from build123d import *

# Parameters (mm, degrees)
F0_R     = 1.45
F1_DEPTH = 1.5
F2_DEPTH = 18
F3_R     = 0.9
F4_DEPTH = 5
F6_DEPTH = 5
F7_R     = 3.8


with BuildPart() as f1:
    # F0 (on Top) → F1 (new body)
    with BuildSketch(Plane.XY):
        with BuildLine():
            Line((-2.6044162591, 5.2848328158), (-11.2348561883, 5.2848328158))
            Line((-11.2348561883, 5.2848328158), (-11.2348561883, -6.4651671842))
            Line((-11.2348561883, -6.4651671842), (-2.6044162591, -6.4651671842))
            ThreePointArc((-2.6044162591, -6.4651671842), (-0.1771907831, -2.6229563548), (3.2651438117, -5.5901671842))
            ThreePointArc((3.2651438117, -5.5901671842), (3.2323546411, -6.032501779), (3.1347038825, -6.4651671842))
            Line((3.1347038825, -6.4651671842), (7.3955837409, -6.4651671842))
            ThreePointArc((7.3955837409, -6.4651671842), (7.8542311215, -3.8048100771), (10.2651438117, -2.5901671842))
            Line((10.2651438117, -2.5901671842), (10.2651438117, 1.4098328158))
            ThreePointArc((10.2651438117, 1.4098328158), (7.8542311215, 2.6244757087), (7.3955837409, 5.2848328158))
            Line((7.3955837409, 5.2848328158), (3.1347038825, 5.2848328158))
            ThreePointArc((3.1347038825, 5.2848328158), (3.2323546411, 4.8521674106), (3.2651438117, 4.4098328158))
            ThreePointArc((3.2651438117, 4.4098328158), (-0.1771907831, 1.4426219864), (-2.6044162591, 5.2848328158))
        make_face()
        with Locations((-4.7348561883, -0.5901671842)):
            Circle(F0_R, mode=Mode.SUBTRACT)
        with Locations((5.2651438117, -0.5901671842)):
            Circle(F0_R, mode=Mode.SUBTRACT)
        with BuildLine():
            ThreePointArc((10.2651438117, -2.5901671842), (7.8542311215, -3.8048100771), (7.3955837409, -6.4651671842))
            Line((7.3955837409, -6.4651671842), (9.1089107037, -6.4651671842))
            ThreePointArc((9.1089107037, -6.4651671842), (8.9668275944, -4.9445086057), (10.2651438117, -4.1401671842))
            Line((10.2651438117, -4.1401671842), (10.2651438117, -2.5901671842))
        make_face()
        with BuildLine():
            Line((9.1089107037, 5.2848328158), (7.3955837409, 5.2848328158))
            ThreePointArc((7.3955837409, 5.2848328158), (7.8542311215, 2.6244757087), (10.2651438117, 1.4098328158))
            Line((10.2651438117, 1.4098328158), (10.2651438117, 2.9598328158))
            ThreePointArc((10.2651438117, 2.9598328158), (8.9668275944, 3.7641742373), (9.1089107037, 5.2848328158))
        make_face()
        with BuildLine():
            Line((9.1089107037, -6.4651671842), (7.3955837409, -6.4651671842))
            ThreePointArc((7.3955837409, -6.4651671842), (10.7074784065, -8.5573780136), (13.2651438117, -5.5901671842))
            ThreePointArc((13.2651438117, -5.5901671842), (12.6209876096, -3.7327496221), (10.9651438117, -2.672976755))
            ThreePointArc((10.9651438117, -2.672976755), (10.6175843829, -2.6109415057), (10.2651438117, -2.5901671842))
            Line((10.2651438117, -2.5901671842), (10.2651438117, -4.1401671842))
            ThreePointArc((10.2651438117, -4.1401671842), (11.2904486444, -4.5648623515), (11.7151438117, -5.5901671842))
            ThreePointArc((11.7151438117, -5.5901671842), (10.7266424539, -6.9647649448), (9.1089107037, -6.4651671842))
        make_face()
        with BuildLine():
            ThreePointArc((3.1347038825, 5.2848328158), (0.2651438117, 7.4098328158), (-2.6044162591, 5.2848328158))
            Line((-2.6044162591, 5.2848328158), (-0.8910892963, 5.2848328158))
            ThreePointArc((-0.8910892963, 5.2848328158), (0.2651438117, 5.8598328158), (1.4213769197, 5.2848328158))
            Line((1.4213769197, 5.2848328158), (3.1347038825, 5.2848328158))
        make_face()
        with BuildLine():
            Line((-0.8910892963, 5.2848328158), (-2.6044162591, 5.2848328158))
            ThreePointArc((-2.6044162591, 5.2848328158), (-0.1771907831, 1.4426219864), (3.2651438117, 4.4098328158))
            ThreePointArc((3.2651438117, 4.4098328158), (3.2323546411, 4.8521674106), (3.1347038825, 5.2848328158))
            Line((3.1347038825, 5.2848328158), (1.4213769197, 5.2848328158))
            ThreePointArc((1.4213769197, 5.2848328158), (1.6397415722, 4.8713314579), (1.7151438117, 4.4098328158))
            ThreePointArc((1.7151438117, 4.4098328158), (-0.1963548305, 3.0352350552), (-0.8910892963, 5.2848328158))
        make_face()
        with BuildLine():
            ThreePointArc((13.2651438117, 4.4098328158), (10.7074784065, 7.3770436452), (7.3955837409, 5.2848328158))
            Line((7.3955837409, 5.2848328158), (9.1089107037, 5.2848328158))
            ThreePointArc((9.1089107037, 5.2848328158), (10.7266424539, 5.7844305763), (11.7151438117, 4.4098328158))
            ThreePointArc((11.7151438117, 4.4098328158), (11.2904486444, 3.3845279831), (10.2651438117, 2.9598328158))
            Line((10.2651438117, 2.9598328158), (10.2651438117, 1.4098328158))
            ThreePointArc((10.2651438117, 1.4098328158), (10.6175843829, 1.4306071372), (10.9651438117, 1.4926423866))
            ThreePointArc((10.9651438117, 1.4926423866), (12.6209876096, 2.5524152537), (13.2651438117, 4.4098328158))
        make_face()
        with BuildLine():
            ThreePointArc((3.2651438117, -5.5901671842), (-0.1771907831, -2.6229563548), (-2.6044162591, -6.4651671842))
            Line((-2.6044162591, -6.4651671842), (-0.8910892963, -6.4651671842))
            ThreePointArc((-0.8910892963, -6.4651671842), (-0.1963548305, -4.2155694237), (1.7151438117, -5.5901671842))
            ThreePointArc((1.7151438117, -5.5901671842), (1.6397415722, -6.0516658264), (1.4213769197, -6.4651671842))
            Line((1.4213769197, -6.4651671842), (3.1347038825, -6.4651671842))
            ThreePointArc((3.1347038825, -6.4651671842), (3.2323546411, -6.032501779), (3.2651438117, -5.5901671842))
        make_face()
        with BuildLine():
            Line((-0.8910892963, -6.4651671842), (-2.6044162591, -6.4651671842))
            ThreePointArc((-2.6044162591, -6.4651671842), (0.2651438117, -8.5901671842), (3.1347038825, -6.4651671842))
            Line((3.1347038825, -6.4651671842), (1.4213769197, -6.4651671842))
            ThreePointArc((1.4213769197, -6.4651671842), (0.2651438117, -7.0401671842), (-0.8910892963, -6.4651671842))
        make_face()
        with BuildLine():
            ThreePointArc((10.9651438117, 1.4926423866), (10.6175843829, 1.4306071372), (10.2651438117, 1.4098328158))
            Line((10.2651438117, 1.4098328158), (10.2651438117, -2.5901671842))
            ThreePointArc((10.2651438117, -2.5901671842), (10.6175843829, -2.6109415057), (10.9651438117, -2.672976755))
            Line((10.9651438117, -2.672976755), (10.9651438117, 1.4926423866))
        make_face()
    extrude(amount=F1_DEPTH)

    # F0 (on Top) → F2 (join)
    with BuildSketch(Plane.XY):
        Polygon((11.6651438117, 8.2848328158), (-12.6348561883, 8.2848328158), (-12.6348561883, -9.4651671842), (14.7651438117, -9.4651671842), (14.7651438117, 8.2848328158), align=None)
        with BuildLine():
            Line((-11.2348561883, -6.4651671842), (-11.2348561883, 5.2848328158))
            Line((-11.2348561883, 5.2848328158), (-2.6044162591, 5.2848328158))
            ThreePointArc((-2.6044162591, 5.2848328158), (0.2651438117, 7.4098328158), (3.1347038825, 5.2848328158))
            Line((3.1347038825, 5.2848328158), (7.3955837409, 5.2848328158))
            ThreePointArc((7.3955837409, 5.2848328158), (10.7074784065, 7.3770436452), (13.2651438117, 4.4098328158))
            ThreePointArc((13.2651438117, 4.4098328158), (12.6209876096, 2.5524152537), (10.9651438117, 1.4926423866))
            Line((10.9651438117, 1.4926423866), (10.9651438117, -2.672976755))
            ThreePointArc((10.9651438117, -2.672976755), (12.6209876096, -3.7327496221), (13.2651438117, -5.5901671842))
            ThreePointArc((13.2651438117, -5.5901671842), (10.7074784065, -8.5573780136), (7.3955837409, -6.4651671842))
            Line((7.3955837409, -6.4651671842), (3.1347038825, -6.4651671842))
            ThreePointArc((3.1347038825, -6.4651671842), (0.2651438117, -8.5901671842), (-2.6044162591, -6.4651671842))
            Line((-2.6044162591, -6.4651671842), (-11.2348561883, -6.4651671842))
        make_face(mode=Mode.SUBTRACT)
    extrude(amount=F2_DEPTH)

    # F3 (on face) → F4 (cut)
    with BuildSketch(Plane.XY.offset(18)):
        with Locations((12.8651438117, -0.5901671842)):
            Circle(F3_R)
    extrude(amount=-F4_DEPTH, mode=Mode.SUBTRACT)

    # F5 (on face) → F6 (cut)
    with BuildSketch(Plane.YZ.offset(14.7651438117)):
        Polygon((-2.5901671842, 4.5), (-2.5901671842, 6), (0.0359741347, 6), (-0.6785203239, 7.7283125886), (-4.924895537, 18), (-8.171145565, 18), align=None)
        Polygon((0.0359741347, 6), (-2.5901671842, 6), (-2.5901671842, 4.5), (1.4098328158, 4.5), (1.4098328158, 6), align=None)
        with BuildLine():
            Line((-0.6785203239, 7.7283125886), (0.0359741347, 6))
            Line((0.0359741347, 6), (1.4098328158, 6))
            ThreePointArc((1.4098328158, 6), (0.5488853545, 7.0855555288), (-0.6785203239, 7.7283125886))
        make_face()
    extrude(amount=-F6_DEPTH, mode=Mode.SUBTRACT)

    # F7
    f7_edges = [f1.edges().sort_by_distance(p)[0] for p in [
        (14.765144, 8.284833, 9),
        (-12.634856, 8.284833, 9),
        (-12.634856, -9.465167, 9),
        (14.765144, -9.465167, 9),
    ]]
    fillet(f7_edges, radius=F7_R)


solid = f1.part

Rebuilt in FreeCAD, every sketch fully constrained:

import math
import FreeCAD as App
import Part
import Sketcher

V = App.Vector
Q = App.Units.Quantity


def edges_at(feature, points):
    """Names of the edges that pass closest to the given points."""
    edges = feature.Shape.Edges
    near = lambda p: min(range(len(edges)), key=lambda i: edges[i].distToShape(Part.Vertex(*p))[0])
    return sorted({f"Edge{near(p) + 1}" for p in points})

doc = App.newDocument("Part")
body = doc.addObject("PartDesign::Body", "Body")

# Sketch on XY plane
sketch1 = body.newObject("Sketcher::SketchObject", "Sketch")
sketch1.AttachmentSupport = (doc.getObject("XY_Plane"), [""])
sketch1.MapMode = "FlatFace"
sketch1.addGeometry(Part.LineSegment(V(-2.604416, 5.284833, 0), V(-11.234856, 5.284833, 0)), False)
sketch1.addGeometry(Part.LineSegment(V(-11.234856, 5.284833, 0), V(-11.234856, -6.465167, 0)), False)
sketch1.addGeometry(Part.LineSegment(V(-11.234856, -6.465167, 0), V(-2.604416, -6.465167, 0)), False)
sketch1.addGeometry(Part.ArcOfCircle(Part.Circle(V(0.265144, -5.590167, 0), V(0, 0, 1), 3), math.radians(-163.042237), math.radians(-16.957763)), False)
sketch1.addGeometry(Part.LineSegment(V(3.134704, -6.465167, 0), V(7.395584, -6.465167, 0)), False)
sketch1.addGeometry(Part.ArcOfCircle(Part.Circle(V(10.265144, -5.590167, 0), V(0, 0, 1), 3), math.radians(-163.042237), math.radians(76.506601)), False)
sketch1.addGeometry(Part.LineSegment(V(10.965144, -2.672977, 0), V(10.965144, 1.492642, 0)), False)
sketch1.addGeometry(Part.ArcOfCircle(Part.Circle(V(10.265144, 4.409833, 0), V(0, 0, 1), 3), math.radians(-76.506601), math.radians(163.042237)), False)
sketch1.addGeometry(Part.LineSegment(V(7.395584, 5.284833, 0), V(3.134704, 5.284833, 0)), False)
sketch1.addGeometry(Part.ArcOfCircle(Part.Circle(V(0.265144, 4.409833, 0), V(0, 0, 1), 3), math.radians(16.957763), math.radians(163.042237)), False)
sketch1.addGeometry(Part.ArcOfCircle(Part.Circle(V(0.265144, -5.590167, 0), V(0, 0, 1), 1.45), math.radians(0), math.radians(217.117263)), False)
sketch1.addGeometry(Part.ArcOfCircle(Part.Circle(V(0.265144, -5.590167, 0), V(0, 0, 1), 1.45), math.radians(-37.117263), math.radians(0)), False)
sketch1.addGeometry(Part.ArcOfCircle(Part.Circle(V(0.265144, -5.590167, 0), V(0, 0, 1), 1.45), math.radians(-142.882737), math.radians(-37.117263)), False)
sketch1.addGeometry(Part.ArcOfCircle(Part.Circle(V(10.265144, 4.409833, 0), V(0, 0, 1), 1.45), math.radians(142.882737), math.radians(270)), False)
sketch1.addGeometry(Part.ArcOfCircle(Part.Circle(V(10.265144, 4.409833, 0), V(0, 0, 1), 1.45), math.radians(0), math.radians(142.882737)), False)
sketch1.addGeometry(Part.ArcOfCircle(Part.Circle(V(10.265144, 4.409833, 0), V(0, 0, 1), 1.45), math.radians(-90), math.radians(0)), False)
sketch1.addGeometry(Part.ArcOfCircle(Part.Circle(V(10.265144, -5.590167, 0), V(0, 0, 1), 1.45), math.radians(90), math.radians(217.117263)), False)
sketch1.addGeometry(Part.ArcOfCircle(Part.Circle(V(10.265144, -5.590167, 0), V(0, 0, 1), 1.45), math.radians(0), math.radians(90)), False)
sketch1.addGeometry(Part.ArcOfCircle(Part.Circle(V(10.265144, -5.590167, 0), V(0, 0, 1), 1.45), math.radians(-142.882737), math.radians(0)), False)
sketch1.addGeometry(Part.Circle(V(-4.734856, -0.590167, 0), V(0, 0, 1), 1.45), False)
sketch1.addGeometry(Part.Circle(V(5.265144, -0.590167, 0), V(0, 0, 1), 1.45), False)
sketch1.addGeometry(Part.ArcOfCircle(Part.Circle(V(0.265144, 4.409833, 0), V(0, 0, 1), 1.45), math.radians(0), math.radians(37.117263)), False)
sketch1.addGeometry(Part.ArcOfCircle(Part.Circle(V(0.265144, 4.409833, 0), V(0, 0, 1), 1.45), math.radians(142.882737), math.radians(360)), False)
sketch1.addGeometry(Part.ArcOfCircle(Part.Circle(V(0.265144, 4.409833, 0), V(0, 0, 1), 1.45), math.radians(37.117263), math.radians(142.882737)), False)
sketch1.addConstraint(Sketcher.Constraint("Coincident", 0, 2, 1, 1))
sketch1.addConstraint(Sketcher.Constraint("Coincident", 1, 2, 2, 1))
sketch1.addConstraint(Sketcher.Constraint("Coincident", 2, 2, 3, 1))
sketch1.addConstraint(Sketcher.Constraint("Coincident", 3, 2, 4, 1))
sketch1.addConstraint(Sketcher.Constraint("Coincident", 4, 2, 5, 1))
sketch1.addConstraint(Sketcher.Constraint("Coincident", 5, 2, 6, 1))
sketch1.addConstraint(Sketcher.Constraint("Coincident", 6, 2, 7, 1))
sketch1.addConstraint(Sketcher.Constraint("Coincident", 7, 2, 8, 1))
sketch1.addConstraint(Sketcher.Constraint("Coincident", 8, 2, 9, 1))
sketch1.addConstraint(Sketcher.Constraint("Coincident", 9, 2, 0, 1))
sketch1.addConstraint(Sketcher.Constraint("Tangent", 10, 1, 11, 2))
sketch1.addConstraint(Sketcher.Constraint("Tangent", 11, 1, 12, 2))
sketch1.addConstraint(Sketcher.Constraint("Tangent", 12, 1, 10, 2))
sketch1.addConstraint(Sketcher.Constraint("Tangent", 13, 1, 14, 2))
sketch1.addConstraint(Sketcher.Constraint("Tangent", 14, 1, 15, 2))
sketch1.addConstraint(Sketcher.Constraint("Tangent", 15, 1, 13, 2))
sketch1.addConstraint(Sketcher.Constraint("Tangent", 16, 1, 17, 2))
sketch1.addConstraint(Sketcher.Constraint("Tangent", 17, 1, 18, 2))
sketch1.addConstraint(Sketcher.Constraint("Tangent", 18, 1, 16, 2))
sketch1.addConstraint(Sketcher.Constraint("Tangent", 21, 1, 22, 2))
sketch1.addConstraint(Sketcher.Constraint("Tangent", 22, 1, 23, 2))
sketch1.addConstraint(Sketcher.Constraint("Tangent", 23, 1, 21, 2))
sketch1.addConstraint(Sketcher.Constraint("Horizontal", 0))
sketch1.addConstraint(Sketcher.Constraint("Vertical", 1))
sketch1.addConstraint(Sketcher.Constraint("Horizontal", 2))
sketch1.addConstraint(Sketcher.Constraint("Horizontal", 4))
sketch1.addConstraint(Sketcher.Constraint("Vertical", 6))
sketch1.addConstraint(Sketcher.Constraint("Horizontal", 8))
sketch1.addConstraint(Sketcher.Constraint("Coincident", 10, 3, 3, 3))
sketch1.addConstraint(Sketcher.Constraint("Coincident", 13, 3, 7, 3))
sketch1.addConstraint(Sketcher.Constraint("Coincident", 16, 3, 5, 3))
sketch1.addConstraint(Sketcher.Constraint("Coincident", 21, 3, 9, 3))
sketch1.addConstraint(Sketcher.Constraint("Equal", 3, 5))
sketch1.addConstraint(Sketcher.Constraint("Equal", 5, 7))
sketch1.addConstraint(Sketcher.Constraint("Equal", 7, 9))
sketch1.addConstraint(Sketcher.Constraint("Equal", 12, 13))
sketch1.addConstraint(Sketcher.Constraint("Equal", 15, 16))
sketch1.addConstraint(Sketcher.Constraint("Equal", 18, 19))
sketch1.addConstraint(Sketcher.Constraint("Equal", 19, 20))
sketch1.addConstraint(Sketcher.Constraint("Equal", 20, 21))
sketch1.addConstraint(Sketcher.Constraint("Horizontal", 3, 3, 5, 3))
sketch1.addConstraint(Sketcher.Constraint("Horizontal", 7, 3, 9, 3))
sketch1.addConstraint(Sketcher.Constraint("Horizontal", 19, 3, 20, 3))
sketch1.addConstraint(Sketcher.Constraint("Horizontal", 2, 2, 3, 2))
sketch1.addConstraint(Sketcher.Constraint("Horizontal", 0, 2, 7, 2))
sketch1.addConstraint(Sketcher.Constraint("Horizontal", 18, 3, 10, 1))
sketch1.addConstraint(Sketcher.Constraint("Horizontal", 4, 2, 11, 1))
sketch1.addConstraint(Sketcher.Constraint("Horizontal", 11, 1, 12, 1))
sketch1.addConstraint(Sketcher.Constraint("Horizontal", 9, 2, 13, 1))
sketch1.addConstraint(Sketcher.Constraint("Horizontal", 23, 3, 14, 1))
sketch1.addConstraint(Sketcher.Constraint("Horizontal", 10, 1, 17, 1))
sketch1.addConstraint(Sketcher.Constraint("Horizontal", 12, 1, 18, 1))
sketch1.addConstraint(Sketcher.Constraint("Horizontal", 14, 1, 21, 1))
sketch1.addConstraint(Sketcher.Constraint("Horizontal", 13, 1, 22, 1))
sketch1.addConstraint(Sketcher.Constraint("Horizontal", 22, 1, 23, 1))
sketch1.addConstraint(Sketcher.Constraint("Vertical", 5, 3, 7, 3))
sketch1.addConstraint(Sketcher.Constraint("Vertical", 3, 3, 9, 3))
sketch1.addConstraint(Sketcher.Constraint("Vertical", 4, 2, 7, 2))
sketch1.addConstraint(Sketcher.Constraint("Vertical", 18, 3, 15, 1))
sketch1.addConstraint(Sketcher.Constraint("Vertical", 15, 1, 16, 1))
sketch1.addConstraint(Sketcher.Constraint("Radius", 3, Q("3 mm")))
sketch1.addConstraint(Sketcher.Constraint("Diameter", 19, Q("2.9 mm")))
sketch1.addConstraint(Sketcher.Constraint("DistanceX", 3, 3, 5, 3, Q("10 mm")))
sketch1.addConstraint(Sketcher.Constraint("DistanceY", 5, 3, 7, 3, Q("10 mm")))
sketch1.addConstraint(Sketcher.Constraint("DistanceX", 19, 3, 11, 3, Q("5 mm")))
sketch1.addConstraint(Sketcher.Constraint("DistanceY", 11, 3, 19, 3, Q("5 mm")))
sketch1.addConstraint(Sketcher.Constraint("DistanceX", 3, 3, 20, 3, Q("5 mm")))
sketch1.addConstraint(Sketcher.Constraint("DistanceY", 1, 2, 1, 1, Q("11.75 mm")))
sketch1.addConstraint(Sketcher.Constraint("DistanceX", 0, 2, 19, 3, Q("6.5 mm")))
sketch1.addConstraint(Sketcher.Constraint("DistanceX", 5, 3, 5, 2, Q("0.7 mm")))
sketch1.addConstraint(Sketcher.Constraint("DistanceX", 12, 1, -1, 1, Q("0.891089 mm")))
sketch1.addConstraint(Sketcher.Constraint("DistanceY", 3, 3, -1, 1, Q("5.590167 mm")))
pad1 = body.newObject("PartDesign::Pad", "Pad")
pad1.Profile = sketch1
pad1.Length = 1.5

# Sketch on XY plane
sketch2 = body.newObject("Sketcher::SketchObject", "Sketch001")
sketch2.AttachmentSupport = (doc.getObject("XY_Plane"), [""])
sketch2.MapMode = "FlatFace"
sketch2.addGeometry(Part.LineSegment(V(-12.634856, 8.284833, 0), V(-12.634856, -9.465167, 0)), False)
sketch2.addGeometry(Part.LineSegment(V(-12.634856, -9.465167, 0), V(14.765144, -9.465167, 0)), False)
sketch2.addGeometry(Part.LineSegment(V(14.765144, -9.465167, 0), V(14.765144, 8.284833, 0)), False)
sketch2.addGeometry(Part.LineSegment(V(14.765144, 8.284833, 0), V(-12.634856, 8.284833, 0)), False)
sketch2.addGeometry(Part.LineSegment(V(-2.604416, -6.465167, 0), V(-11.234856, -6.465167, 0)), False)
sketch2.addGeometry(Part.LineSegment(V(-11.234856, -6.465167, 0), V(-11.234856, 5.284833, 0)), False)
sketch2.addGeometry(Part.LineSegment(V(-11.234856, 5.284833, 0), V(-2.604416, 5.284833, 0)), False)
sketch2.addGeometry(Part.ArcOfCircle(Part.Circle(V(0.265144, 4.409833, 0), V(0, 0, 1), 3), math.radians(16.957763), math.radians(163.042237)), False)
sketch2.addGeometry(Part.LineSegment(V(3.134704, 5.284833, 0), V(7.395584, 5.284833, 0)), False)
sketch2.addGeometry(Part.ArcOfCircle(Part.Circle(V(10.265144, 4.409833, 0), V(0, 0, 1), 3), math.radians(-76.506601), math.radians(163.042237)), False)
sketch2.addGeometry(Part.LineSegment(V(10.965144, 1.492642, 0), V(10.965144, -2.672977, 0)), False)
sketch2.addGeometry(Part.ArcOfCircle(Part.Circle(V(10.265144, -5.590167, 0), V(0, 0, 1), 3), math.radians(-163.042237), math.radians(76.506601)), False)
sketch2.addGeometry(Part.LineSegment(V(7.395584, -6.465167, 0), V(3.134704, -6.465167, 0)), False)
sketch2.addGeometry(Part.ArcOfCircle(Part.Circle(V(0.265144, -5.590167, 0), V(0, 0, 1), 3), math.radians(-163.042237), math.radians(-16.957763)), False)
sketch2.addConstraint(Sketcher.Constraint("Coincident", 0, 2, 1, 1))
sketch2.addConstraint(Sketcher.Constraint("Coincident", 1, 2, 2, 1))
sketch2.addConstraint(Sketcher.Constraint("Coincident", 2, 2, 3, 1))
sketch2.addConstraint(Sketcher.Constraint("Coincident", 3, 2, 0, 1))
sketch2.addConstraint(Sketcher.Constraint("Coincident", 4, 2, 5, 1))
sketch2.addConstraint(Sketcher.Constraint("Coincident", 5, 2, 6, 1))
sketch2.addConstraint(Sketcher.Constraint("Coincident", 6, 2, 7, 2))
sketch2.addConstraint(Sketcher.Constraint("Coincident", 7, 1, 8, 1))
sketch2.addConstraint(Sketcher.Constraint("Coincident", 8, 2, 9, 2))
sketch2.addConstraint(Sketcher.Constraint("Coincident", 9, 1, 10, 1))
sketch2.addConstraint(Sketcher.Constraint("Coincident", 10, 2, 11, 2))
sketch2.addConstraint(Sketcher.Constraint("Coincident", 11, 1, 12, 1))
sketch2.addConstraint(Sketcher.Constraint("Coincident", 12, 2, 13, 2))
sketch2.addConstraint(Sketcher.Constraint("Coincident", 13, 1, 4, 1))
sketch2.addConstraint(Sketcher.Constraint("Vertical", 0))
sketch2.addConstraint(Sketcher.Constraint("Horizontal", 1))
sketch2.addConstraint(Sketcher.Constraint("Vertical", 2))
sketch2.addConstraint(Sketcher.Constraint("Horizontal", 3))
sketch2.addConstraint(Sketcher.Constraint("Horizontal", 4))
sketch2.addConstraint(Sketcher.Constraint("Vertical", 5))
sketch2.addConstraint(Sketcher.Constraint("Horizontal", 6))
sketch2.addConstraint(Sketcher.Constraint("Horizontal", 8))
sketch2.addConstraint(Sketcher.Constraint("Vertical", 10))
sketch2.addConstraint(Sketcher.Constraint("Horizontal", 12))
sketch2.addConstraint(Sketcher.Constraint("Equal", 7, 9))
sketch2.addConstraint(Sketcher.Constraint("Equal", 9, 11))
sketch2.addConstraint(Sketcher.Constraint("Equal", 11, 13))
sketch2.addConstraint(Sketcher.Constraint("Horizontal", 7, 3, 9, 3))
sketch2.addConstraint(Sketcher.Constraint("Horizontal", 11, 3, 13, 3))
sketch2.addConstraint(Sketcher.Constraint("Horizontal", 6, 2, 7, 1))
sketch2.addConstraint(Sketcher.Constraint("Horizontal", 4, 2, 11, 1))
sketch2.addConstraint(Sketcher.Constraint("Vertical", 9, 3, 11, 3))
sketch2.addConstraint(Sketcher.Constraint("Vertical", 7, 3, 13, 3))
sketch2.addConstraint(Sketcher.Constraint("Vertical", 8, 2, 11, 1))
sketch2.addConstraint(Sketcher.Constraint("Radius", 7, Q("3 mm")))
sketch2.addConstraint(Sketcher.Constraint("DistanceX", 1, 1, 1, 2, Q("27.4 mm")))
sketch2.addConstraint(Sketcher.Constraint("DistanceX", 7, 3, 9, 3, Q("10 mm")))
sketch2.addConstraint(Sketcher.Constraint("DistanceY", 11, 3, 9, 3, Q("10 mm")))
sketch2.addConstraint(Sketcher.Constraint("DistanceY", 0, 2, 4, 2, Q("3 mm")))
sketch2.addConstraint(Sketcher.Constraint("DistanceY", 5, 2, 3, 2, Q("3 mm")))
sketch2.addConstraint(Sketcher.Constraint("DistanceY", 0, 2, 0, 1, Q("17.75 mm")))
sketch2.addConstraint(Sketcher.Constraint("DistanceX", 0, 2, 13, 3, Q("12.9 mm")))
sketch2.addConstraint(Sketcher.Constraint("DistanceX", 0, 2, 4, 2, Q("1.4 mm")))
sketch2.addConstraint(Sketcher.Constraint("DistanceX", 9, 3, 9, 1, Q("0.7 mm")))
sketch2.addConstraint(Sketcher.Constraint("DistanceX", -1, 1, 7, 3, Q("0.265144 mm")))
sketch2.addConstraint(Sketcher.Constraint("DistanceY", -1, 1, 7, 3, Q("4.409833 mm")))
pad2 = body.newObject("PartDesign::Pad", "Pad001")
pad2.Profile = sketch2
pad2.Length = 18

# Sketch on XY plane
sketch3 = body.newObject("Sketcher::SketchObject", "Sketch002")
sketch3.AttachmentSupport = (doc.getObject("XY_Plane"), [""])
sketch3.MapMode = "FlatFace"
sketch3.AttachmentOffset = App.Placement(V(0, 0, 18), App.Rotation())
sketch3.addGeometry(Part.Circle(V(12.865144, -0.590167, 0), V(0, 0, 1), 0.9), False)
sketch3.addConstraint(Sketcher.Constraint("Diameter", 0, Q("1.8 mm")))
sketch3.addConstraint(Sketcher.Constraint("DistanceX", -1, 1, 0, 3, Q("12.865144 mm")))
sketch3.addConstraint(Sketcher.Constraint("DistanceY", 0, 3, -1, 1, Q("0.590167 mm")))
pocket1 = body.newObject("PartDesign::Pocket", "Pocket")
pocket1.Profile = sketch3
pocket1.Length = 5

# Sketch on YZ plane
sketch4 = body.newObject("Sketcher::SketchObject", "Sketch003")
sketch4.AttachmentSupport = (doc.getObject("YZ_Plane"), [""])
sketch4.MapMode = "FlatFace"
sketch4.AttachmentOffset = App.Placement(V(0, 0, 14.765144), App.Rotation())
sketch4.addGeometry(Part.LineSegment(V(-8.171146, 18, 0), V(-2.590167, 4.5, 0)), False)
sketch4.addGeometry(Part.LineSegment(V(-2.590167, 4.5, 0), V(1.409833, 4.5, 0)), False)
sketch4.addGeometry(Part.LineSegment(V(1.409833, 4.5, 0), V(1.409833, 6, 0)), False)
sketch4.addGeometry(Part.ArcOfCircle(Part.Circle(V(-1.580523, 4.512551, 0), V(0, 0, 1), 3.33987), math.radians(26.446458), math.radians(74.331503)), False)
sketch4.addGeometry(Part.LineSegment(V(-0.67852, 7.728313, 0), V(-4.924896, 18, 0)), False)
sketch4.addGeometry(Part.LineSegment(V(-4.924896, 18, 0), V(-8.171146, 18, 0)), False)
sketch4.addConstraint(Sketcher.Constraint("Coincident", 0, 2, 1, 1))
sketch4.addConstraint(Sketcher.Constraint("Coincident", 1, 2, 2, 1))
sketch4.addConstraint(Sketcher.Constraint("Coincident", 2, 2, 3, 1))
sketch4.addConstraint(Sketcher.Constraint("Coincident", 3, 2, 4, 1))
sketch4.addConstraint(Sketcher.Constraint("Coincident", 4, 2, 5, 1))
sketch4.addConstraint(Sketcher.Constraint("Coincident", 5, 2, 0, 1))
sketch4.addConstraint(Sketcher.Constraint("Horizontal", 1))
sketch4.addConstraint(Sketcher.Constraint("Vertical", 2))
sketch4.addConstraint(Sketcher.Constraint("Horizontal", 5))
sketch4.addConstraint(Sketcher.Constraint("Parallel", 0, 4))
sketch4.addConstraint(Sketcher.Constraint("DistanceX", 1, 1, 1, 2, Q("4 mm")))
sketch4.addConstraint(Sketcher.Constraint("DistanceY", 2, 1, 2, 2, Q("1.5 mm")))
sketch4.addConstraint(Sketcher.Constraint("DistanceY", -1, 1, 2, 2, Q("6 mm")))
sketch4.addConstraint(Sketcher.Constraint("DistanceY", -1, 1, 4, 2, Q("18 mm")))
sketch4.addConstraint(Sketcher.Constraint("Radius", 3, Q("3.33987 mm")))
sketch4.addConstraint(Sketcher.Constraint("DistanceX", 5, 2, 5, 1, Q("3.24625 mm")))
sketch4.addConstraint(Sketcher.Constraint("Distance", 4, Q("11.114822 mm")))
sketch4.addConstraint(Sketcher.Constraint("DistanceY", -1, 1, 3, 3, Q("4.512551 mm")))
sketch4.addConstraint(Sketcher.Constraint("DistanceX", 3, 2, -1, 1, Q("0.67852 mm")))
pocket2 = body.newObject("PartDesign::Pocket", "Pocket001")
pocket2.Profile = sketch4
pocket2.Length = 5
doc.recompute()

fillet = body.newObject("PartDesign::Fillet", "Fillet")
fillet.Base = (pocket2, edges_at(pocket2, [
    (14.765, 8.285, 9),
    (-12.635, 8.285, 9),
    (-12.635, -9.465, 9),
    (14.765, -9.465, 9),
]))
fillet.Radius = 3.8

doc.recompute()
